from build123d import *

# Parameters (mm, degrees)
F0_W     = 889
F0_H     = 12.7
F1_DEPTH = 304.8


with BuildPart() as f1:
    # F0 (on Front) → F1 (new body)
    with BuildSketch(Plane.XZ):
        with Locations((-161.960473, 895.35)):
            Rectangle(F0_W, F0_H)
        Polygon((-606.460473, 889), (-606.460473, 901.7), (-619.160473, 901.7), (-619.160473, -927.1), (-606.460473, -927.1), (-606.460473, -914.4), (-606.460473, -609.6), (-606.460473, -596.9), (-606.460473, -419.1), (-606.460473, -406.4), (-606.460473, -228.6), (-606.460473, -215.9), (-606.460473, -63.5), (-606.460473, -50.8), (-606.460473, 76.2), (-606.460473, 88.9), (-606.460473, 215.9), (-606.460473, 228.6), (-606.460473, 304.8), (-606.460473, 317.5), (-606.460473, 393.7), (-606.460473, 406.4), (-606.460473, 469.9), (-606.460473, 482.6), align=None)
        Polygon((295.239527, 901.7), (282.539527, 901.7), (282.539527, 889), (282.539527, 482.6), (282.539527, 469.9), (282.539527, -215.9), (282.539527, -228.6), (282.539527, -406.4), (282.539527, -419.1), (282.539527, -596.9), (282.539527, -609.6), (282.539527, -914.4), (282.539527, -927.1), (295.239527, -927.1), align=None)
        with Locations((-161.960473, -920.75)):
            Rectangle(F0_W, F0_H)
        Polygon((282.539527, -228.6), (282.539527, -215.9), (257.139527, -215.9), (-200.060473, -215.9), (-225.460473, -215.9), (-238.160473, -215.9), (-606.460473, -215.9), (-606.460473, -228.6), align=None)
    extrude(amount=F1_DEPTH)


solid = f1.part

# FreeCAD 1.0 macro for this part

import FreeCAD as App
import Part
import Sketcher

V = App.Vector
Q = App.Units.Quantity

doc = App.newDocument("Part")
body = doc.addObject("PartDesign::Body", "Body")

sketch1 = doc.addObject("Sketcher::SketchObject", "Sketch")
body.addObject(sketch1)
sketch1.AttachmentSupport = (doc.XZ_Plane, [""])
sketch1.MapMode = "FlatFace"
sketch1.addGeometry(Part.LineSegment(V(295.239527, -927.1, 0), V(295.239527, 901.7, 0)), False)
sketch1.addGeometry(Part.LineSegment(V(295.239527, 901.7, 0), V(-619.160473, 901.7, 0)), False)
sketch1.addGeometry(Part.LineSegment(V(-619.160473, 901.7, 0), V(-619.160473, -927.1, 0)), False)
sketch1.addGeometry(Part.LineSegment(V(-619.160473, -927.1, 0), V(295.239527, -927.1, 0)), False)
sketch1.addGeometry(Part.LineSegment(V(-606.460473, 889, 0), V(282.539527, 889, 0)), False)
sketch1.addGeometry(Part.LineSegment(V(282.539527, 889, 0), V(282.539527, -215.9, 0)), False)
sketch1.addGeometry(Part.LineSegment(V(282.539527, -215.9, 0), V(-606.460473, -215.9, 0)), False)
sketch1.addGeometry(Part.LineSegment(V(-606.460473, -215.9, 0), V(-606.460473, 889, 0)), False)
sketch1.addGeometry(Part.LineSegment(V(282.539527, -228.6, 0), V(282.539527, -914.4, 0)), False)
sketch1.addGeometry(Part.LineSegment(V(282.539527, -914.4, 0), V(-606.460473, -914.4, 0)), False)
sketch1.addGeometry(Part.LineSegment(V(-606.460473, -914.4, 0), V(-606.460473, -228.6, 0)), False)
sketch1.addGeometry(Part.LineSegment(V(-606.460473, -228.6, 0), V(282.539527, -228.6, 0)), False)
sketch1.addConstraint(Sketcher.Constraint("Coincident", 0, 2, 1, 1))
sketch1.addConstraint(Sketcher.Constraint("Coincident", 1, 2, 2, 1))
sketch1.addConstraint(Sketcher.Constraint("Coincident", 2, 2, 3, 1))
sketch1.addConstraint(Sketcher.Constraint("Coincident", 3, 2, 0, 1))
sketch1.addConstraint(Sketcher.Constraint("Coincident", 4, 2, 5, 1))
sketch1.addConstraint(Sketcher.Constraint("Coincident", 5, 2, 6, 1))
sketch1.addConstraint(Sketcher.Constraint("Coincident", 6, 2, 7, 1))
sketch1.addConstraint(Sketcher.Constraint("Coincident", 7, 2, 4, 1))
sketch1.addConstraint(Sketcher.Constraint("Coincident", 8, 2, 9, 1))
sketch1.addConstraint(Sketcher.Constraint("Coincident", 9, 2, 10, 1))
sketch1.addConstraint(Sketcher.Constraint("Coincident", 10, 2, 11, 1))
sketch1.addConstraint(Sketcher.Constraint("Coincident", 11, 2, 8, 1))
sketch1.addConstraint(Sketcher.Constraint("Vertical", 0))
sketch1.addConstraint(Sketcher.Constraint("Horizontal", 1))
sketch1.addConstraint(Sketcher.Constraint("Vertical", 2))
sketch1.addConstraint(Sketcher.Constraint("Horizontal", 3))
sketch1.addConstraint(Sketcher.Constraint("Horizontal", 4))
sketch1.addConstraint(Sketcher.Constraint("Vertical", 5))
sketch1.addConstraint(Sketcher.Constraint("Horizontal", 6))
sketch1.addConstraint(Sketcher.Constraint("Vertical", 7))
sketch1.addConstraint(Sketcher.Constraint("Vertical", 8))
sketch1.addConstraint(Sketcher.Constraint("Horizontal", 9))
sketch1.addConstraint(Sketcher.Constraint("Vertical", 10))
sketch1.addConstraint(Sketcher.Constraint("Horizontal", 11))
sketch1.addConstraint(Sketcher.Constraint("Vertical", 5, 2, 8, 2))
sketch1.addConstraint(Sketcher.Constraint("Vertical", 7, 2, 9, 2))
sketch1.addConstraint(Sketcher.Constraint("DistanceX", 1, 2, 1, 1, Q("36 in")))
sketch1.addConstraint(Sketcher.Constraint("DistanceX", 4, 1, 4, 2, Q("35 in")))
sketch1.addConstraint(Sketcher.Constraint("DistanceY", 0, 1, 0, 2, Q("72 in")))
sketch1.addConstraint(Sketcher.Constraint("DistanceY", 8, 2, 8, 1, Q("27 in")))
sketch1.addConstraint(Sketcher.Constraint("DistanceY", 5, 2, 5, 1, Q("43.5 in")))
sketch1.addConstraint(Sketcher.Constraint("DistanceY", -1, 1, 4, 2, Q("35 in")))
sketch1.addConstraint(Sketcher.Constraint("DistanceY", 8, 2, -1, 1, Q("36 in")))
sketch1.addConstraint(Sketcher.Constraint("DistanceY", 3, 2, 5, 2, Q("28 in")))
sketch1.addConstraint(Sketcher.Constraint("DistanceX", 4, 2, 0, 2, Q("0.5 in")))
sketch1.addConstraint(Sketcher.Constraint("DistanceX", -1, 1, 0, 2, Q("295.239527 mm")))
pad1 = doc.addObject("PartDesign::Pad", "Pad")
body.addObject(pad1)
pad1.Profile = sketch1
pad1.Length = Q("12 in")

doc.recompute()
